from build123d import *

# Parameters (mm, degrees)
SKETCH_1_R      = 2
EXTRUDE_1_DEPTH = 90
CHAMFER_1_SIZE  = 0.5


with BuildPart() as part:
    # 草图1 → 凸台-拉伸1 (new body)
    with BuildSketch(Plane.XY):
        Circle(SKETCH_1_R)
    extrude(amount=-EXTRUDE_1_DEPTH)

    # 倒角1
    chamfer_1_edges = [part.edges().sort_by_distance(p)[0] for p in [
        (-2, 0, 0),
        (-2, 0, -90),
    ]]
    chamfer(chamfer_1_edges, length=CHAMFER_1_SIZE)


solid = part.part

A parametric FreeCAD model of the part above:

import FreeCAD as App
import Part
import Sketcher
from FreeCAD import Vector


def edges_at(feature, points):
    """Names of the edges that pass closest to the given points."""
    edges = feature.Shape.Edges
    near = lambda p: min(range(len(edges)), key=lambda i: edges[i].distToShape(Part.Vertex(*p))[0])
    return sorted({f"Edge{near(p) + 1}" for p in points})

doc = App.newDocument("Part")
body = doc.addObject("PartDesign::Body", "Body")

sketch1 = body.newObject("Sketcher::SketchObject", "Sketch")
sketch1.AttachmentSupport = (doc.getObject("XY_Plane"), [""])
sketch1.MapMode = "FlatFace"
sketch1.addGeometry(Part.Circle(Vector(0, 0, 0), Vector(0, 0, 1), 2), False)
sketch1.addConstraint(Sketcher.Constraint("Coincident", 0, 3, -1, 1))
sketch1.addConstraint(Sketcher.Constraint("Diameter", 0, 4.0))
pad1 = body.newObject("PartDesign::Pad", "Pad")
pad1.Profile = sketch1
pad1.Length = 90
pad1.Reversed = True
doc.recompute()

chamfer = body.newObject("PartDesign::Chamfer", "Chamfer")
chamfer.Base = (pad1, edges_at(pad1, [(-2, 0, 0), (-2, 0, -90)]))
chamfer.Size = 0.5

doc.recompute()
